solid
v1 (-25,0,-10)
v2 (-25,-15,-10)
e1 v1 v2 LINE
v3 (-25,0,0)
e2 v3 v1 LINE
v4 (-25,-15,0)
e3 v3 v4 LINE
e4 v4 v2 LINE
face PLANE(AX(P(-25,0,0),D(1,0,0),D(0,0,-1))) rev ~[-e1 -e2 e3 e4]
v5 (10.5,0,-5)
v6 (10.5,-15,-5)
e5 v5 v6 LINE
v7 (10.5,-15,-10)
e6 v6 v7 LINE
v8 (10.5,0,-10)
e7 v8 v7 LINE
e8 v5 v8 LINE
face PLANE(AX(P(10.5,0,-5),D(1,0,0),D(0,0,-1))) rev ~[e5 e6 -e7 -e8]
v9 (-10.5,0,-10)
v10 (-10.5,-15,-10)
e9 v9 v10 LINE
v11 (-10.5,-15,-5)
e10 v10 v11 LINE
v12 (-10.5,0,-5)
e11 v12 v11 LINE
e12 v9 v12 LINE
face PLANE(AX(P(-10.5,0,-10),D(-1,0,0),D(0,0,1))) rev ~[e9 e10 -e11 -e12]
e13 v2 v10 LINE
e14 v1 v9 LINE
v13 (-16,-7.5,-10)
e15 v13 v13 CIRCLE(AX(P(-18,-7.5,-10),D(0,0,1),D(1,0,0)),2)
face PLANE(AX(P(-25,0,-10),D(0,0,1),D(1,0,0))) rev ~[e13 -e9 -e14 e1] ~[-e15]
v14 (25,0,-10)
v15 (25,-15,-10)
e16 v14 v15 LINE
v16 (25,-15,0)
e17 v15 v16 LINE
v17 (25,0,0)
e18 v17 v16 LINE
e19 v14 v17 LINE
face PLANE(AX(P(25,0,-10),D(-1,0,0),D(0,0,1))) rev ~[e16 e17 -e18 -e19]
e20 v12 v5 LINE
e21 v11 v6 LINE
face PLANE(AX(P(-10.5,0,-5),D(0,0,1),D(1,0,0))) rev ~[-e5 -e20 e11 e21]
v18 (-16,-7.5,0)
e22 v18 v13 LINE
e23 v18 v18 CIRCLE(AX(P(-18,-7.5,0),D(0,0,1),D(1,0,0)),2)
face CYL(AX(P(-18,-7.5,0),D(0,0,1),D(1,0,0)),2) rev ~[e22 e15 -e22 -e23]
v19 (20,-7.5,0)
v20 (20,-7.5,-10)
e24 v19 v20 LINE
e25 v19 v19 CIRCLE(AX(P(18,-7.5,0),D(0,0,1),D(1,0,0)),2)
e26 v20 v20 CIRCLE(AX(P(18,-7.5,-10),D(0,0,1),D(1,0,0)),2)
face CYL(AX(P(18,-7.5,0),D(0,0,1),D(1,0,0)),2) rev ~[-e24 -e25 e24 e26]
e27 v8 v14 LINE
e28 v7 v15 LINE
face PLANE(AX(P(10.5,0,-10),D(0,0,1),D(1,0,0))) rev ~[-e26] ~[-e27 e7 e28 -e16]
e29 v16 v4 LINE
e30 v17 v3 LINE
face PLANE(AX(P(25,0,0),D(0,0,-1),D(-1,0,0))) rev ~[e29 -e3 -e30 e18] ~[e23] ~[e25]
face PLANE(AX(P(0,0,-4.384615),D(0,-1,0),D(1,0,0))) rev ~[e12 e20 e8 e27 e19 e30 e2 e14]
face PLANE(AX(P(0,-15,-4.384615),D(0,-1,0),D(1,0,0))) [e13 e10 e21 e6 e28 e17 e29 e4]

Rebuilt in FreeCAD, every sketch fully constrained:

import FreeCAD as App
import Part
import Sketcher
from FreeCAD import Vector
Q = App.Units.Quantity

doc = App.newDocument("Part")
body = doc.addObject("PartDesign::Body", "Body")

# Sketch on XZ plane
sketch1 = doc.addObject("Sketcher::SketchObject", "Sketch")
body.addObject(sketch1)
sketch1.AttachmentSupport = (doc.XZ_Plane, [""])
sketch1.MapMode = "FlatFace"
sketch1.addGeometry(Part.LineSegment(Vector(25, 0, 0), Vector(-25, 0, 0)), False)
sketch1.addGeometry(Part.LineSegment(Vector(-25, 0, 0), Vector(-25, -10, 0)), False)
sketch1.addGeometry(Part.LineSegment(Vector(-25, -10, 0), Vector(-10, -10, 0)), False)
sketch1.addGeometry(Part.LineSegment(Vector(-10, -10, 0), Vector(-10, -5, 0)), False)
sketch1.addGeometry(Part.LineSegment(Vector(-10, -5, 0), Vector(10, -5, 0)), False)
sketch1.addGeometry(Part.LineSegment(Vector(10, -5, 0), Vector(10, -10, 0)), False)
sketch1.addGeometry(Part.LineSegment(Vector(10, -10, 0), Vector(25, -10, 0)), False)
sketch1.addGeometry(Part.LineSegment(Vector(25, -10, 0), Vector(25, 0, 0)), False)
sketch1.addConstraint(Sketcher.Constraint("Coincident", 0, 2, 1, 1))
sketch1.addConstraint(Sketcher.Constraint("Coincident", 1, 2, 2, 1))
sketch1.addConstraint(Sketcher.Constraint("Coincident", 2, 2, 3, 1))
sketch1.addConstraint(Sketcher.Constraint("Coincident", 3, 2, 4, 1))
sketch1.addConstraint(Sketcher.Constraint("Coincident", 4, 2, 5, 1))
sketch1.addConstraint(Sketcher.Constraint("Coincident", 5, 2, 6, 1))
sketch1.addConstraint(Sketcher.Constraint("Coincident", 6, 2, 7, 1))
sketch1.addConstraint(Sketcher.Constraint("Coincident", 7, 2, 0, 1))
sketch1.addConstraint(Sketcher.Constraint("Horizontal", 0))
sketch1.addConstraint(Sketcher.Constraint("Vertical", 1))
sketch1.addConstraint(Sketcher.Constraint("Horizontal", 2))
sketch1.addConstraint(Sketcher.Constraint("Vertical", 3))
sketch1.addConstraint(Sketcher.Constraint("Horizontal", 4))
sketch1.addConstraint(Sketcher.Constraint("Vertical", 5))
sketch1.addConstraint(Sketcher.Constraint("Horizontal", 6))
sketch1.addConstraint(Sketcher.Constraint("Vertical", 7))
sketch1.addConstraint(Sketcher.Constraint("Symmetric", 0, 2, 7, 2, -1, 1))
sketch1.addConstraint(Sketcher.Constraint("Symmetric", 2, 2, 5, 2, -2))
sketch1.addConstraint(Sketcher.Constraint("DistanceX", 0, 2, 0, 1, Q("50 mm")))
sketch1.addConstraint(Sketcher.Constraint("DistanceX", 4, 1, 4, 2, Q("21 mm")))
sketch1.addConstraint(Sketcher.Constraint("DistanceY", 1, 2, 1, 1, Q("10 mm")))
sketch1.addConstraint(Sketcher.Constraint("DistanceY", 3, 1, 3, 2, Q("5 mm")))
pad1 = doc.addObject("PartDesign::Pad", "Pad")
body.addObject(pad1)
pad1.Profile = sketch1
pad1.Length = 15

# Sketch on XY plane
sketch2 = doc.addObject("Sketcher::SketchObject", "Sketch001")
body.addObject(sketch2)
sketch2.AttachmentSupport = (doc.XY_Plane, [""])
sketch2.MapMode = "FlatFace"
sketch2.addGeometry(Part.Circle(Vector(-18, -7.5, 0), Vector(0, 0, 1), 2), False)
sketch2.addGeometry(Part.Circle(Vector(18, -7.5, 0), Vector(0, 0, 1), 2), False)
sketch2.addConstraint(Sketcher.Constraint("Equal", 0, 1))
sketch2.addConstraint(Sketcher.Constraint("Symmetric", 0, 3, 1, 3, -2))
sketch2.addConstraint(Sketcher.Constraint("Diameter", 0, Q("4 mm")))
sketch2.addConstraint(Sketcher.Constraint("DistanceX", 0, 3, -1, 1, Q("18 mm")))
sketch2.addConstraint(Sketcher.Constraint("DistanceY", 0, 3, -1, 1, Q("7.5 mm")))
pocket1 = doc.addObject("PartDesign::Pocket", "Pocket")
body.addObject(pocket1)
pocket1.Profile = sketch2
pocket1.Length = 25

doc.recompute()
